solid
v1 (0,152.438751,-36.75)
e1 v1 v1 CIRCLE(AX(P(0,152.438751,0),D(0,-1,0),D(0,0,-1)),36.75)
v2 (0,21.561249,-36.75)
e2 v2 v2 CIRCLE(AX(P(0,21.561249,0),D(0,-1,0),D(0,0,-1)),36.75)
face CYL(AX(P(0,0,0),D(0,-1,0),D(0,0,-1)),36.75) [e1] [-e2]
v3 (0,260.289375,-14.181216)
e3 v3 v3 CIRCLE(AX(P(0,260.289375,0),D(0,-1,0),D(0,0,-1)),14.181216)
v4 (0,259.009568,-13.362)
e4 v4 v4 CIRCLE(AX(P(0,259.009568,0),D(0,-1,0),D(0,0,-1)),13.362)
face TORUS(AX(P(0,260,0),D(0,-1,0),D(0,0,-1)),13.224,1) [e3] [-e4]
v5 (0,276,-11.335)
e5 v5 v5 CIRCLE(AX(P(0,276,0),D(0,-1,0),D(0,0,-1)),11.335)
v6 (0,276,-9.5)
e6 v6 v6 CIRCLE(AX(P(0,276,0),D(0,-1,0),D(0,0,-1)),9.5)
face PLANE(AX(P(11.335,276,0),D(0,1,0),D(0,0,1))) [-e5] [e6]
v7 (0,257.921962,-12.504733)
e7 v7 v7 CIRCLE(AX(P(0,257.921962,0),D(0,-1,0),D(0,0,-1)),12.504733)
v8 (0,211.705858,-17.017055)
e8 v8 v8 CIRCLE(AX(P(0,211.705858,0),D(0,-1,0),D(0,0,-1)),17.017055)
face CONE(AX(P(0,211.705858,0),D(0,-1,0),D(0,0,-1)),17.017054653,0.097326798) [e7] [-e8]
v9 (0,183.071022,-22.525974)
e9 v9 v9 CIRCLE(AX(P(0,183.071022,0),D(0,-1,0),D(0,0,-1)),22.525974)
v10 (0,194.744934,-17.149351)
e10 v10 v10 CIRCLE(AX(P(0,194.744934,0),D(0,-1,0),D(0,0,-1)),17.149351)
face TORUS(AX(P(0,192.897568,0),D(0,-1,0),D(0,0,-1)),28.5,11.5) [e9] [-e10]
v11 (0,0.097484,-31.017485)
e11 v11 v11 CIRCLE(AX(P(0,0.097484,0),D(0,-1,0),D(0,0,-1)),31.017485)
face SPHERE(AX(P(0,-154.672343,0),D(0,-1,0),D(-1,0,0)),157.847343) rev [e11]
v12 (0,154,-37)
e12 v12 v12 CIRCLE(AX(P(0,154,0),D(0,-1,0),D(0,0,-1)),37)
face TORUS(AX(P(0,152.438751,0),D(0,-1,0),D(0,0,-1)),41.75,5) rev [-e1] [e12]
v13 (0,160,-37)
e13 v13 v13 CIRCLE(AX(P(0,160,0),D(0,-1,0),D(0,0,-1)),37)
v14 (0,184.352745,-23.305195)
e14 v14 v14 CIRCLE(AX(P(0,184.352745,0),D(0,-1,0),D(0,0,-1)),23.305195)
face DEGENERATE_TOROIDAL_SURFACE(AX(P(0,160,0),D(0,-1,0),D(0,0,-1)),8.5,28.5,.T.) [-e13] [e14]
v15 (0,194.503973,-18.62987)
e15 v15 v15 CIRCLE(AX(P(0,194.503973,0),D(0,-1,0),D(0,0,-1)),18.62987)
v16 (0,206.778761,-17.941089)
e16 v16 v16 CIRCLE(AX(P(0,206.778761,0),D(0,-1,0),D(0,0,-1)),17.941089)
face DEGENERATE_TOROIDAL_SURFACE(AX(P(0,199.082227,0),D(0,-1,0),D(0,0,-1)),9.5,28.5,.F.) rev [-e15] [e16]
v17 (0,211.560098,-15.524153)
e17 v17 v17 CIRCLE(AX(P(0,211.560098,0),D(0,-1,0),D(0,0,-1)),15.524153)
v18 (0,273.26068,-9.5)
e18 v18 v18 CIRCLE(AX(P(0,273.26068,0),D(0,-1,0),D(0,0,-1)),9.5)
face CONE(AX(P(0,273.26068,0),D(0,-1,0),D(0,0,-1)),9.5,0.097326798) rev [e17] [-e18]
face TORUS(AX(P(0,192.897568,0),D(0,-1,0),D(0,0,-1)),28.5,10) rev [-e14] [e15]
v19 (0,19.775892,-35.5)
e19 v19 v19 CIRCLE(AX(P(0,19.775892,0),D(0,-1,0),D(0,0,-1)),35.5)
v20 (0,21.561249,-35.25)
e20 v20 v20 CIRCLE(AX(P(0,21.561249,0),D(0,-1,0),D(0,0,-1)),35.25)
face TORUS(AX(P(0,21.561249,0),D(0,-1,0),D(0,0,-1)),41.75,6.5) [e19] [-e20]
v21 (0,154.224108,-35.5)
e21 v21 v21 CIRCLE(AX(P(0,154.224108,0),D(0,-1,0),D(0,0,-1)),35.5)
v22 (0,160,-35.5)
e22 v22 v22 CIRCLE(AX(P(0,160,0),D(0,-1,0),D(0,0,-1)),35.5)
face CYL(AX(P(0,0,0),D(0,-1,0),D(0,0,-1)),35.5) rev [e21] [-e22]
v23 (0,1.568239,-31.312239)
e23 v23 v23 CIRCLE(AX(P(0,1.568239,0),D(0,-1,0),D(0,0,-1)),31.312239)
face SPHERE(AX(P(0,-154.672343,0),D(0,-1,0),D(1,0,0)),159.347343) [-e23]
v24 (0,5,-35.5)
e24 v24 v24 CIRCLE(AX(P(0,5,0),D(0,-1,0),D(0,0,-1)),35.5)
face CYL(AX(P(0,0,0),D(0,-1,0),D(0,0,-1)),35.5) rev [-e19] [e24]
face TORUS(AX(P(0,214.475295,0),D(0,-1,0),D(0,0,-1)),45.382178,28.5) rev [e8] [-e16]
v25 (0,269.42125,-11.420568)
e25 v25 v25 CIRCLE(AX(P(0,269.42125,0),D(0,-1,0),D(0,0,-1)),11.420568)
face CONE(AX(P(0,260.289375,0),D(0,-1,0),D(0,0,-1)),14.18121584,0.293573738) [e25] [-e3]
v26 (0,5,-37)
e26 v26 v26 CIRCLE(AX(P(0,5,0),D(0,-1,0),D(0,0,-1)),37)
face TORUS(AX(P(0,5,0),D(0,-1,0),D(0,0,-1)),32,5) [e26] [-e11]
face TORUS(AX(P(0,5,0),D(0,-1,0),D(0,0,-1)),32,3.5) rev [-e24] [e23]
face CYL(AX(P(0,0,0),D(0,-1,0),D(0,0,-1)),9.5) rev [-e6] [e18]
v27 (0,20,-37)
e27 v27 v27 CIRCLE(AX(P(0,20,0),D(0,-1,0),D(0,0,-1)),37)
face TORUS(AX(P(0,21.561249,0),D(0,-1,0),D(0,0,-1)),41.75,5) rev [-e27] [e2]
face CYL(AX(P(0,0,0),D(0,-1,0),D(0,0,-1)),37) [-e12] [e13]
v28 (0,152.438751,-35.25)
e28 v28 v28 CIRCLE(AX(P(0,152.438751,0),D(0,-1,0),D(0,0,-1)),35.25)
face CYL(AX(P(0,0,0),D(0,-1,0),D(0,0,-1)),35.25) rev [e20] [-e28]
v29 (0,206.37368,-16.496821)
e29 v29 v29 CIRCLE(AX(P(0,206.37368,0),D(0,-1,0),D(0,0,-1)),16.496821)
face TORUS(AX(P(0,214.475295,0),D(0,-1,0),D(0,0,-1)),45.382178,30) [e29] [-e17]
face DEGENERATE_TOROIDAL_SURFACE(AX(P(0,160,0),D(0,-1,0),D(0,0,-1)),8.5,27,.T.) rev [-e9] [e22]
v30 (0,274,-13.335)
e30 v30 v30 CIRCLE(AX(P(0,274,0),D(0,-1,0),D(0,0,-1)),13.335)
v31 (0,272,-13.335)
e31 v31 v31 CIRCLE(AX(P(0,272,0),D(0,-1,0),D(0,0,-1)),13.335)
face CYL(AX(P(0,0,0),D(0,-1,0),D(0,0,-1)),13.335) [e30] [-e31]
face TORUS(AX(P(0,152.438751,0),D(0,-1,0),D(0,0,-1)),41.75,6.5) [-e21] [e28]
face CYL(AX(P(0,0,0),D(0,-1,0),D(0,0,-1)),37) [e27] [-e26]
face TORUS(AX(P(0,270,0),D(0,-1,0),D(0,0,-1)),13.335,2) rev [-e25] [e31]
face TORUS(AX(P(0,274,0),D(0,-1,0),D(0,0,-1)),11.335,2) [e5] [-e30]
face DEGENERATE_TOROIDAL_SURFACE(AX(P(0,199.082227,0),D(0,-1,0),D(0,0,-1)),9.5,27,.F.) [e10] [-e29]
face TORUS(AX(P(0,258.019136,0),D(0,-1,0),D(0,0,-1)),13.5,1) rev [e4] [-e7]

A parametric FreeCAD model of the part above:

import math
import FreeCAD as App
import Part
import Sketcher

V = App.Vector

doc = App.newDocument("Part")
params = doc.addObject("Spreadsheet::Sheet", "Params")
for row, (alias, value) in enumerate([
    ("sketch1_radius", "5 mm"),
    ("sketch1_radius2", "10 mm"),
    ("sketch1_radius3", "1 mm"),
    ("sketch1_radius4", "2 mm"),
    ("sketch1_radius5", "30 mm"),
    ("revolution_angle", "360 deg"),
], start=1):
    params.set(f"A{row}", alias)
    params.set(f"B{row}", "=" + value)
    params.setAlias(f"B{row}", alias)

body = doc.addObject("PartDesign::Body", "Body")

# Sketch on XY plane
sketch1 = body.newObject("Sketcher::SketchObject", "Sketch")
sketch1.AttachmentSupport = (doc.getObject("XY_Plane"), [""])
sketch1.MapMode = "FlatFace"
sketch1.addGeometry(Part.LineSegment(V(37, 5, 0), V(37, 20, 0)), False)
sketch1.addGeometry(Part.ArcOfCircle(Part.Circle(V(41.7, 21.6, 0), V(0, 0, 1), 5), math.radians(180), math.radians(198.19)), False)
sketch1.addGeometry(Part.LineSegment(V(36.8, 21.6, 0), V(36.8, 152.4, 0)), False)
sketch1.addGeometry(Part.ArcOfCircle(Part.Circle(V(41.7, 152.4, 0), V(0, 0, 1), 5), math.radians(161.81), math.radians(180)), False)
sketch1.addGeometry(Part.LineSegment(V(37, 154, 0), V(37, 160, 0)), False)
sketch1.addGeometry(Part.ArcOfCircle(Part.Circle(V(8.5, 160, 0), V(0, 0, 1), 28.5), math.radians(0), math.radians(59)), False)
sketch1.addGeometry(Part.ArcOfCircle(Part.Circle(V(28.5, 192.9, 0), V(0, 0, 1), 10), math.radians(171), math.radians(239)), False)
sketch1.addGeometry(Part.ArcOfCircle(Part.Circle(V(-9.5, 199.1, 0), V(0, 0, 1), 28.5), math.radians(-9), math.radians(16)), False)
sketch1.addGeometry(Part.ArcOfCircle(Part.Circle(V(45.4, 214.5, 0), V(0, 0, 1), 28.5), math.radians(-174.42), math.radians(-164.33)), False)
sketch1.addGeometry(Part.LineSegment(V(17, 211.7, 0), V(12.5, 257.9, 0)), False)
sketch1.addGeometry(Part.ArcOfCircle(Part.Circle(V(13.5, 258, 0), V(0, 0, 1), 1), math.radians(98), math.radians(186)), False)
sketch1.addGeometry(Part.ArcOfCircle(Part.Circle(V(13.2, 260, 0), V(0, 0, 1), 1), math.radians(-82), math.radians(17)), False)
sketch1.addGeometry(Part.LineSegment(V(14.2, 260.3, 0), V(11.4, 269.4, 0)), False)
sketch1.addGeometry(Part.ArcOfCircle(Part.Circle(V(13.3, 270, 0), V(0, 0, 1), 2), math.radians(90), math.radians(197)), False)
sketch1.addGeometry(Part.LineSegment(V(13.3, 272, 0), V(13.3, 274, 0)), False)
sketch1.addGeometry(Part.ArcOfCircle(Part.Circle(V(11.3, 274, 0), V(0, 0, 1), 2), math.radians(0), math.radians(90)), False)
sketch1.addGeometry(Part.LineSegment(V(11.3, 276, 0), V(9.5, 276, 0)), False)
sketch1.addGeometry(Part.LineSegment(V(9.5, 276, 0), V(9.5, 273.3, 0)), False)
sketch1.addGeometry(Part.LineSegment(V(9.5, 273.3, 0), V(15.5, 211.6, 0)), False)
sketch1.addGeometry(Part.ArcOfCircle(Part.Circle(V(45.4, 214.5, 0), V(0, 0, 1), 30), math.radians(-174.42), math.radians(-164.33)), False)
sketch1.addGeometry(Part.ArcOfCircle(Part.Circle(V(-9.5, 199.1, 0), V(0, 0, 1), 27), math.radians(-9), math.radians(16)), False)
sketch1.addGeometry(Part.ArcOfCircle(Part.Circle(V(28.5, 192.9, 0), V(0, 0, 1), 11.5), math.radians(171), math.radians(239)), False)
sketch1.addGeometry(Part.ArcOfCircle(Part.Circle(V(8.5, 160, 0), V(0, 0, 1), 27), math.radians(0), math.radians(59)), False)
sketch1.addGeometry(Part.LineSegment(V(35.5, 160, 0), V(35.5, 154.2, 0)), False)
sketch1.addGeometry(Part.ArcOfCircle(Part.Circle(V(41.7, 152.4, 0), V(0, 0, 1), 6.5), math.radians(164.06), math.radians(180)), False)
sketch1.addGeometry(Part.LineSegment(V(35.2, 152.4, 0), V(35.2, 21.6, 0)), False)
sketch1.addGeometry(Part.ArcOfCircle(Part.Circle(V(41.7, 21.6, 0), V(0, 0, 1), 6.5), math.radians(180), math.radians(195.94)), False)
sketch1.addGeometry(Part.LineSegment(V(35.5, 19.8, 0), V(35.5, 5, 0)), False)
sketch1.addGeometry(Part.ArcOfCircle(Part.Circle(V(32, 5, 0), V(0, 0, 1), 3.5), math.radians(-101), math.radians(0)), False)
sketch1.addGeometry(Part.ArcOfCircle(Part.Circle(V(0, -154.7, 0), V(0, 0, 1), 159.3), math.radians(78.67), math.radians(90)), False)
sketch1.addGeometry(Part.LineSegment(V(0, 4.7, 0), V(0, 3.2, 0)), False)
sketch1.addGeometry(Part.ArcOfCircle(Part.Circle(V(0, -154.7, 0), V(0, 0, 1), 157.8), math.radians(78.67), math.radians(90)), False)
sketch1.addGeometry(Part.ArcOfCircle(Part.Circle(V(32, 5, 0), V(0, 0, 1), 5), math.radians(-101), math.radians(0)), False)
sketch1.addConstraint(Sketcher.Constraint("Coincident", 0, 2, 1, 2))
sketch1.addConstraint(Sketcher.Constraint("Tangent", 1, 1, 2, 1))
sketch1.addConstraint(Sketcher.Constraint("Tangent", 2, 2, 3, 2))
sketch1.addConstraint(Sketcher.Constraint("Coincident", 3, 1, 4, 1))
sketch1.addConstraint(Sketcher.Constraint("Tangent", 4, 2, 5, 1))
sketch1.addConstraint(Sketcher.Constraint("Tangent", 5, 2, 6, 2))
sketch1.addConstraint(Sketcher.Constraint("Tangent", 6, 1, 7, 1))
sketch1.addConstraint(Sketcher.Constraint("Tangent", 7, 2, 8, 2))
sketch1.addConstraint(Sketcher.Constraint("Tangent", 8, 1, 9, 1))
sketch1.addConstraint(Sketcher.Constraint("Tangent", 9, 2, 10, 2))
sketch1.addConstraint(Sketcher.Constraint("Tangent", 10, 1, 11, 1))
sketch1.addConstraint(Sketcher.Constraint("Tangent", 11, 2, 12, 1))
sketch1.addConstraint(Sketcher.Constraint("Tangent", 12, 2, 13, 2))
sketch1.addConstraint(Sketcher.Constraint("Coincident", 13, 1, 14, 1))
sketch1.addConstraint(Sketcher.Constraint("Tangent", 14, 2, 15, 1))
sketch1.addConstraint(Sketcher.Constraint("Tangent", 15, 2, 16, 1))
sketch1.addConstraint(Sketcher.Constraint("Coincident", 16, 2, 17, 1))
sketch1.addConstraint(Sketcher.Constraint("Coincident", 17, 2, 18, 1))
sketch1.addConstraint(Sketcher.Constraint("Tangent", 18, 2, 19, 1))
sketch1.addConstraint(Sketcher.Constraint("Tangent", 19, 2, 20, 2))
sketch1.addConstraint(Sketcher.Constraint("Tangent", 20, 1, 21, 1))
sketch1.addConstraint(Sketcher.Constraint("Tangent", 21, 2, 22, 2))
sketch1.addConstraint(Sketcher.Constraint("Tangent", 22, 1, 23, 1))
sketch1.addConstraint(Sketcher.Constraint("Coincident", 23, 2, 24, 1))
sketch1.addConstraint(Sketcher.Constraint("Tangent", 24, 2, 25, 1))
sketch1.addConstraint(Sketcher.Constraint("Tangent", 25, 2, 26, 1))
sketch1.addConstraint(Sketcher.Constraint("Coincident", 26, 2, 27, 1))
sketch1.addConstraint(Sketcher.Constraint("Tangent", 27, 2, 28, 2))
sketch1.addConstraint(Sketcher.Constraint("Tangent", 28, 1, 29, 1))
sketch1.addConstraint(Sketcher.Constraint("Coincident", 29, 2, 30, 1))
sketch1.addConstraint(Sketcher.Constraint("Coincident", 30, 2, 31, 2))
sketch1.addConstraint(Sketcher.Constraint("Tangent", 31, 1, 32, 1))
sketch1.addConstraint(Sketcher.Constraint("Tangent", 32, 2, 0, 1))
sketch1.addConstraint(Sketcher.Constraint("Vertical", 0))
sketch1.addConstraint(Sketcher.Constraint("Vertical", 2))
sketch1.addConstraint(Sketcher.Constraint("Vertical", 4))
sketch1.addConstraint(Sketcher.Constraint("Vertical", 14))
sketch1.addConstraint(Sketcher.Constraint("Horizontal", 16))
sketch1.addConstraint(Sketcher.Constraint("Vertical", 17))
sketch1.addConstraint(Sketcher.Constraint("Vertical", 23))
sketch1.addConstraint(Sketcher.Constraint("Vertical", 25))
sketch1.addConstraint(Sketcher.Constraint("Vertical", 27))
sketch1.addConstraint(Sketcher.Constraint("Vertical", 30))
sketch1.addConstraint(Sketcher.Constraint("Coincident", 19, 3, 8, 3))
sketch1.addConstraint(Sketcher.Constraint("Coincident", 20, 3, 7, 3))
sketch1.addConstraint(Sketcher.Constraint("Coincident", 21, 3, 6, 3))
sketch1.addConstraint(Sketcher.Constraint("Coincident", 22, 3, 5, 3))
sketch1.addConstraint(Sketcher.Constraint("Coincident", 24, 3, 3, 3))
sketch1.addConstraint(Sketcher.Constraint("Coincident", 26, 3, 1, 3))
sketch1.addConstraint(Sketcher.Constraint("Coincident", 31, 3, 29, 3))
sketch1.addConstraint(Sketcher.Constraint("Coincident", 32, 3, 28, 3))
sketch1.addConstraint(Sketcher.Constraint("Equal", 1, 3))
sketch1.addConstraint(Sketcher.Constraint("Equal", 5, 7))
sketch1.addConstraint(Sketcher.Constraint("Equal", 7, 8))
sketch1.addConstraint(Sketcher.Constraint("Equal", 10, 11))
sketch1.addConstraint(Sketcher.Constraint("Equal", 13, 15))
sketch1.addConstraint(Sketcher.Constraint("Equal", 3, 32))
sketch1.addConstraint(Sketcher.Constraint("PointOnObject", 29, 3, -2))
sketch1.addConstraint(Sketcher.Constraint("PointOnObject", 29, 2, -2))
sketch1.addConstraint(Sketcher.Constraint("Parallel", 9, 18))
sketch1.addConstraint(Sketcher.Constraint("Vertical", 0, 2, 3, 1))
sketch1.addConstraint(Sketcher.Constraint("Vertical", 23, 2, 26, 2))
sketch1.addConstraint(Sketcher.Constraint("Radius", 1, 5.0))
sketch1.addConstraint(Sketcher.Constraint("Radius", 6, 10.0))
sketch1.addConstraint(Sketcher.Constraint("Radius", 10, 1.0))
sketch1.addConstraint(Sketcher.Constraint("Radius", 13, 2.0))
sketch1.addConstraint(Sketcher.Constraint("Radius", 19, 30.0))
sketch1.addConstraint(Sketcher.Constraint("Radius", 20, 27.0))
sketch1.addConstraint(Sketcher.Constraint("Radius", 24, 6.5))
sketch1.addConstraint(Sketcher.Constraint("DistanceY", 0, 1, 0, 2, 15.0))
sketch1.addConstraint(Sketcher.Constraint("DistanceY", 4, 1, 4, 2, 6.0))
sketch1.addConstraint(Sketcher.Constraint("DistanceY", 14, 1, 14, 2, 2.0))
sketch1.addConstraint(Sketcher.Constraint("DistanceY", -1, 1, 5, 3, 160.0))
sketch1.addConstraint(Sketcher.Constraint("DistanceY", -1, 1, 11, 3, 260.0))
sketch1.addConstraint(Sketcher.Constraint("DistanceY", -1, 1, 13, 3, 270.0))
sketch1.addConstraint(Sketcher.Constraint("DistanceX", -1, 1, 28, 3, 32.0))
sketch1.addConstraint(Sketcher.Constraint("DistanceY", -1, 1, 28, 3, 5.0))
sketch1.addConstraint(Sketcher.Constraint("DistanceX", 5, 3, 6, 3, 20.0))
sketch1.addConstraint(Sketcher.Constraint("DistanceX", 7, 3, 6, 3, 38.0))
sketch1.addConstraint(Sketcher.Constraint("DistanceX", 7, 3, 10, 3, 23.0))
sketch1.addConstraint(Sketcher.Constraint("DistanceX", 15, 3, 13, 3, 2.0))
sketch1.addConstraint(Sketcher.Constraint("DistanceX", -1, 1, 16, 2, 9.5))
sketch1.addConstraint(Sketcher.Constraint("DistanceX", 16, 2, 16, 1, 1.835))
sketch1.addConstraint(Sketcher.Constraint("DistanceX", -1, 1, 1, 3, 41.75))
sketch1.addConstraint(Sketcher.Constraint("DistanceX", -1, 1, 11, 3, 13.224))
sketch1.addConstraint(Sketcher.Constraint("DistanceY", -1, 1, 29, 2, 4.675))
sketch1.addConstraint(Sketcher.Constraint("DistanceY", 17, 2, 17, 1, 2.73932))
sketch1.setExpression("Constraints[62]", "Params.sketch1_radius")
sketch1.setExpression("Constraints[63]", "Params.sketch1_radius2")
sketch1.setExpression("Constraints[64]", "Params.sketch1_radius3")
sketch1.setExpression("Constraints[65]", "Params.sketch1_radius4")
sketch1.setExpression("Constraints[66]", "Params.sketch1_radius5")
revolution = body.newObject("PartDesign::Revolution", "Revolution")
revolution.Profile = sketch1
revolution.ReferenceAxis = (sketch1, ["V_Axis"])
revolution.setExpression("Angle", "Params.revolution_angle")

doc.recompute()
